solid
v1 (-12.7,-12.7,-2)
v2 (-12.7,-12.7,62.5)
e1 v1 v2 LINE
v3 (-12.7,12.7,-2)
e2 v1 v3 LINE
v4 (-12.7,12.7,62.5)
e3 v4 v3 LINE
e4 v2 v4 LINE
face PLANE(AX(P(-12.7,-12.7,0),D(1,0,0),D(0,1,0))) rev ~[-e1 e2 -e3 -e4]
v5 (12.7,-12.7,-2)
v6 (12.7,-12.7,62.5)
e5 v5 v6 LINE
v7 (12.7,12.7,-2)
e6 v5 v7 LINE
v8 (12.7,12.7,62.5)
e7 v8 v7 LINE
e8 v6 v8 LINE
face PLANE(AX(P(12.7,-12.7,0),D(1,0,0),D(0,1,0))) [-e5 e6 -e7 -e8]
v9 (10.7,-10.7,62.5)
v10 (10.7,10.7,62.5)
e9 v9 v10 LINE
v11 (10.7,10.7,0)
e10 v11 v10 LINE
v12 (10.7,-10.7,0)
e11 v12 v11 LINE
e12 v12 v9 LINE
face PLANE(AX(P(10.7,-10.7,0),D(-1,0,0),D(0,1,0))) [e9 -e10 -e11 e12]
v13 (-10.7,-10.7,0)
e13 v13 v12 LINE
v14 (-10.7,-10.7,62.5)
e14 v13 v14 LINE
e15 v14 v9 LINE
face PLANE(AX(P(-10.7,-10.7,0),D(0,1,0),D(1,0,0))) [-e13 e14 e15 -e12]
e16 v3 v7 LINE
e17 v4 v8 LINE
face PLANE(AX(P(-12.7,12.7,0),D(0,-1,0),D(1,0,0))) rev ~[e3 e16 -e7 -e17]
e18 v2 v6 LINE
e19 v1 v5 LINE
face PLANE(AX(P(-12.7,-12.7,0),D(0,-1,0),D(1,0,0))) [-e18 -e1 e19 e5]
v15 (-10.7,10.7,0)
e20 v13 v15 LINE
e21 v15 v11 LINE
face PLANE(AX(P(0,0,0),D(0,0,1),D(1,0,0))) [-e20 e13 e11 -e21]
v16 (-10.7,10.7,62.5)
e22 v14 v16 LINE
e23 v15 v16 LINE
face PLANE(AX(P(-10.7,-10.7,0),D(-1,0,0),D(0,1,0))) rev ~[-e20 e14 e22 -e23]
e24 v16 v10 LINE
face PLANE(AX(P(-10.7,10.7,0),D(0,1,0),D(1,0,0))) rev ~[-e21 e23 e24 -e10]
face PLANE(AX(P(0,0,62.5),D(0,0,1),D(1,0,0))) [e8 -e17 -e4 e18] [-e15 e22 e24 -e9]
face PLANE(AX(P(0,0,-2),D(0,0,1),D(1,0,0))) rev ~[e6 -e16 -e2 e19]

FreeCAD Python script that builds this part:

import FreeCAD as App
import Part
import Sketcher
from FreeCAD import Vector

doc = App.newDocument("Part")
body = doc.addObject("PartDesign::Body", "Body")

sketch1 = doc.addObject("Sketcher::SketchObject", "Sketch")
body.addObject(sketch1)
sketch1.AttachmentSupport = (doc.XY_Plane, [""])
sketch1.MapMode = "FlatFace"
sketch1.addGeometry([
    Part.LineSegment(Vector(-12.7, 12.7, 0), Vector(-12.7, -12.7, 0)),
    Part.LineSegment(Vector(-12.7, -12.7, 0), Vector(12.7, -12.7, 0)),
    Part.LineSegment(Vector(12.7, -12.7, 0), Vector(12.7, 12.7, 0)),
    Part.LineSegment(Vector(12.7, 12.7, 0), Vector(-12.7, 12.7, 0)),
    Part.LineSegment(Vector(10.7, -10.7, 0), Vector(-10.7, -10.7, 0)),
    Part.LineSegment(Vector(-10.7, -10.7, 0), Vector(-10.7, 10.7, 0)),
    Part.LineSegment(Vector(-10.7, 10.7, 0), Vector(10.7, 10.7, 0)),
    Part.LineSegment(Vector(10.7, 10.7, 0), Vector(10.7, -10.7, 0)),
], False)
sketch1.addConstraint([
    Sketcher.Constraint("Coincident", 0, 2, 1, 1),
    Sketcher.Constraint("Coincident", 1, 2, 2, 1),
    Sketcher.Constraint("Coincident", 2, 2, 3, 1),
    Sketcher.Constraint("Coincident", 3, 2, 0, 1),
    Sketcher.Constraint("Coincident", 4, 2, 5, 1),
    Sketcher.Constraint("Coincident", 5, 2, 6, 1),
    Sketcher.Constraint("Coincident", 6, 2, 7, 1),
    Sketcher.Constraint("Coincident", 7, 2, 4, 1),
    Sketcher.Constraint("Vertical", 0),
    Sketcher.Constraint("Horizontal", 1),
    Sketcher.Constraint("Vertical", 2),
    Sketcher.Constraint("Horizontal", 3),
    Sketcher.Constraint("Horizontal", 4),
    Sketcher.Constraint("Vertical", 5),
    Sketcher.Constraint("Horizontal", 6),
    Sketcher.Constraint("Vertical", 7),
    Sketcher.Constraint("Symmetric", 0, 2, 2, 2, -1, 1),
    Sketcher.Constraint("Symmetric", 4, 2, 6, 2, -1, 1),
    Sketcher.Constraint("Equal", 3, 0),
    Sketcher.Constraint("Equal", 6, 5),
    Sketcher.Constraint("DistanceX", 1, 1, 1, 2, 25.4),
    Sketcher.Constraint("DistanceX", 4, 2, 4, 1, 21.4),
])
pad1 = doc.addObject("PartDesign::Pad", "Pad")
body.addObject(pad1)
pad1.Profile = sketch1
pad1.Length = 62.5

sketch2 = doc.addObject("Sketcher::SketchObject", "Sketch001")
body.addObject(sketch2)
sketch2.AttachmentSupport = (doc.XY_Plane, [""])
sketch2.MapMode = "FlatFace"
sketch2.addGeometry([
    Part.LineSegment(Vector(-12.7, 12.7, 0), Vector(-12.7, -12.7, 0)),
    Part.LineSegment(Vector(-12.7, -12.7, 0), Vector(12.7, -12.7, 0)),
    Part.LineSegment(Vector(12.7, -12.7, 0), Vector(12.7, 12.7, 0)),
    Part.LineSegment(Vector(12.7, 12.7, 0), Vector(-12.7, 12.7, 0)),
], False)
sketch2.addConstraint([
    Sketcher.Constraint("Coincident", 0, 2, 1, 1),
    Sketcher.Constraint("Coincident", 1, 2, 2, 1),
    Sketcher.Constraint("Coincident", 2, 2, 3, 1),
    Sketcher.Constraint("Coincident", 3, 2, 0, 1),
    Sketcher.Constraint("Vertical", 0),
    Sketcher.Constraint("Horizontal", 1),
    Sketcher.Constraint("Vertical", 2),
    Sketcher.Constraint("Horizontal", 3),
    Sketcher.Constraint("Symmetric", 0, 2, 2, 2, -1, 1),
    Sketcher.Constraint("Equal", 3, 0),
    Sketcher.Constraint("DistanceX", 1, 1, 1, 2, 25.4),
])
pad2 = doc.addObject("PartDesign::Pad", "Pad001")
body.addObject(pad2)
pad2.Profile = sketch2
pad2.Length = 2
pad2.Reversed = True

doc.recompute()
